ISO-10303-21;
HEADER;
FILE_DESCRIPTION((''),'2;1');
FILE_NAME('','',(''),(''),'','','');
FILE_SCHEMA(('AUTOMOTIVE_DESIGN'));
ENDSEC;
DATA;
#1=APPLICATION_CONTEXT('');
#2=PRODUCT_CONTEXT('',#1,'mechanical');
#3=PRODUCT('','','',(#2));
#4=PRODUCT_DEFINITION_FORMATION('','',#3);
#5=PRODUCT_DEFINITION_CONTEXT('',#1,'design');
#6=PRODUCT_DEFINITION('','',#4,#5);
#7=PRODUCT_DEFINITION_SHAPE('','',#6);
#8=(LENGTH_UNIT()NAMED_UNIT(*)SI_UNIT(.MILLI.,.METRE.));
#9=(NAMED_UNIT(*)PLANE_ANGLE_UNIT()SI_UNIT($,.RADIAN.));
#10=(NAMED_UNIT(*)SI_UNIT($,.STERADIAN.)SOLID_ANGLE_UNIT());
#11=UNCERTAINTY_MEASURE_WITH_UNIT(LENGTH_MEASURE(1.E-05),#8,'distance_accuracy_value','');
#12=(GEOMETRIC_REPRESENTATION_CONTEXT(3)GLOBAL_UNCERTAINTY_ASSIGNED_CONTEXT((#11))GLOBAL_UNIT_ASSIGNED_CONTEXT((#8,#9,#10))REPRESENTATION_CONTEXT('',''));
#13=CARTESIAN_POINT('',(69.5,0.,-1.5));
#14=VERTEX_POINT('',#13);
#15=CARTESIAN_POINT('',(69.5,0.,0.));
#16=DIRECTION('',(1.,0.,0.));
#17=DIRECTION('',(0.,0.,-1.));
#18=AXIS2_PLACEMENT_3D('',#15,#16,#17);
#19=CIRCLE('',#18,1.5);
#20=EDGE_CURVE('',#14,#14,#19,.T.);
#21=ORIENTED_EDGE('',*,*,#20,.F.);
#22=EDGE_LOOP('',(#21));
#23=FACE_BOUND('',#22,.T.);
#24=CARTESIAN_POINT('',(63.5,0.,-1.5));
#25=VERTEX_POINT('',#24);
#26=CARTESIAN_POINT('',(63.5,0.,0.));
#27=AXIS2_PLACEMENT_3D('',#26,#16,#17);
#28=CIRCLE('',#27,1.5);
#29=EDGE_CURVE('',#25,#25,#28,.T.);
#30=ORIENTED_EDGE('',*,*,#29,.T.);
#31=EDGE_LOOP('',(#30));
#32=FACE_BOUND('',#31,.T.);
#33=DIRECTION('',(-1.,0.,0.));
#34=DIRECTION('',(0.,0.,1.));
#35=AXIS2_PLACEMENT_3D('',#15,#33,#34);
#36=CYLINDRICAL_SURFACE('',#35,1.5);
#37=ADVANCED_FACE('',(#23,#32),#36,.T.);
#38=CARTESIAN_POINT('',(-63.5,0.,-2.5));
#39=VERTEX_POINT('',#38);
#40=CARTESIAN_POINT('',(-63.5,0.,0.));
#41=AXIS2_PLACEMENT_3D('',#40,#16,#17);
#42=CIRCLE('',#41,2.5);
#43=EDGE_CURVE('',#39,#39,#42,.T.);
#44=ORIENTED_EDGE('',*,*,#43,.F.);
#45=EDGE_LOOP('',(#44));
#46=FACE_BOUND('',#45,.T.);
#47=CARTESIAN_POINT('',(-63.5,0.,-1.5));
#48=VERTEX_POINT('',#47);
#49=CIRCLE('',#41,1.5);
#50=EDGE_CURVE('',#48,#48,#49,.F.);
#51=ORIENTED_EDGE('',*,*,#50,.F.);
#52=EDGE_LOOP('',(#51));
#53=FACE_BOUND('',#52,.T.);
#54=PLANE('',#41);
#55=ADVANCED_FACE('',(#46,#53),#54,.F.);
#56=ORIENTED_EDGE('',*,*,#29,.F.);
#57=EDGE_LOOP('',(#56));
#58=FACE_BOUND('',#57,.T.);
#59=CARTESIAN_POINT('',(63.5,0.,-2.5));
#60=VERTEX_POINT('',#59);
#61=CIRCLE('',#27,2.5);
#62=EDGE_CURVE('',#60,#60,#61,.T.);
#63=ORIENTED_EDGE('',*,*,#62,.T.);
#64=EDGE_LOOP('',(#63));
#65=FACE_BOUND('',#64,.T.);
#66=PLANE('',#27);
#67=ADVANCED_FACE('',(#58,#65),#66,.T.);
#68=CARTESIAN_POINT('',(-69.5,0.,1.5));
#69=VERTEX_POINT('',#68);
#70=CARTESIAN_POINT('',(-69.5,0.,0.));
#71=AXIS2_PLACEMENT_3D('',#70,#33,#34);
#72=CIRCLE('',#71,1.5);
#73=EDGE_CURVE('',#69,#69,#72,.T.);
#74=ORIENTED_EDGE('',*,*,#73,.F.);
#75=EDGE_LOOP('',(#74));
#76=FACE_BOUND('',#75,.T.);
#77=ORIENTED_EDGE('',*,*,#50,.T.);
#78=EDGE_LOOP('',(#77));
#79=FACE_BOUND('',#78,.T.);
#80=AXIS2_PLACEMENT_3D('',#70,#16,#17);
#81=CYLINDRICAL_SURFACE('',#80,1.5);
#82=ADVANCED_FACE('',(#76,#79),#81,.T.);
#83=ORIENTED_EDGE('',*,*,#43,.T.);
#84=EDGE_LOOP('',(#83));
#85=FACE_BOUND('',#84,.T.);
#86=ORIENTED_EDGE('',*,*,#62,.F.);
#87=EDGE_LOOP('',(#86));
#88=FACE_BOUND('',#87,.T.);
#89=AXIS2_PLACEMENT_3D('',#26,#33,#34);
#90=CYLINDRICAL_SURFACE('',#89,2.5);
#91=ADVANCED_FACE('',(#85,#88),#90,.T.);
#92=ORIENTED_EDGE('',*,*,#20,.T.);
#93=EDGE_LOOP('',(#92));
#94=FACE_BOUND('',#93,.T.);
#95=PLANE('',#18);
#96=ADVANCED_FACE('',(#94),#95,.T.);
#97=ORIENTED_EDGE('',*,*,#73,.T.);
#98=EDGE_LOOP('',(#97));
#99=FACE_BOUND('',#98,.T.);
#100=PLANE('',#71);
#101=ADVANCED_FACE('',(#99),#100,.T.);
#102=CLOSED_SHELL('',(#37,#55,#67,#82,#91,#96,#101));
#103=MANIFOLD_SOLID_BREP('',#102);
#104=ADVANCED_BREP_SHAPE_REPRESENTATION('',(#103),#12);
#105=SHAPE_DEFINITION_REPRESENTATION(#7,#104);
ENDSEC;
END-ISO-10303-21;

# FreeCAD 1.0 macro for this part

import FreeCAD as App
import Part
import Sketcher
from FreeCAD import Vector
Q = App.Units.Quantity

doc = App.newDocument("Part")
body = doc.addObject("PartDesign::Body", "Body")

# Sketch on YZ plane
sketch1 = doc.addObject("Sketcher::SketchObject", "Sketch")
body.addObject(sketch1)
sketch1.AttachmentSupport = (doc.YZ_Plane, [""])
sketch1.MapMode = "FlatFace"
sketch1.addGeometry(Part.Circle(Vector(0, 0, 0), Vector(0, 0, 1), 2.5), False)
sketch1.addConstraint([
    Sketcher.Constraint("Coincident", 0, 3, -1, 1),
    Sketcher.Constraint("Diameter", 0, Q("5 mm")),
])
pad1 = doc.addObject("PartDesign::Pad", "Pad")
body.addObject(pad1)
pad1.Profile = sketch1
pad1.Length = 127
pad1.Midplane = True

# Sketch on YZ plane
sketch2 = doc.addObject("Sketcher::SketchObject", "Sketch001")
body.addObject(sketch2)
sketch2.AttachmentSupport = (doc.YZ_Plane, [""])
sketch2.MapMode = "FlatFace"
sketch2.AttachmentOffset = App.Placement(Vector(0, 0, 63.5), App.Rotation())
sketch2.addGeometry(Part.Circle(Vector(0, 0, 0), Vector(0, 0, 1), 1.5), False)
sketch2.addConstraint([
    Sketcher.Constraint("Coincident", 0, 3, -1, 1),
    Sketcher.Constraint("Diameter", 0, Q("3 mm")),
])
pad2 = doc.addObject("PartDesign::Pad", "Pad001")
body.addObject(pad2)
pad2.Profile = sketch2
pad2.Length = 6

# Sketch on YZ plane
sketch3 = doc.addObject("Sketcher::SketchObject", "Sketch002")
body.addObject(sketch3)
sketch3.AttachmentSupport = (doc.YZ_Plane, [""])
sketch3.MapMode = "FlatFace"
sketch3.AttachmentOffset = App.Placement(Vector(0, 0, -63.5), App.Rotation())
sketch3.addGeometry(Part.Circle(Vector(0, 0, 0), Vector(0, 0, 1), 1.5), False)
sketch3.addConstraint([
    Sketcher.Constraint("Coincident", 0, 3, -1, 1),
    Sketcher.Constraint("Diameter", 0, Q("3 mm")),
])
pad3 = doc.addObject("PartDesign::Pad", "Pad002")
body.addObject(pad3)
pad3.Profile = sketch3
pad3.Length = 6
pad3.Reversed = True

doc.recompute()
